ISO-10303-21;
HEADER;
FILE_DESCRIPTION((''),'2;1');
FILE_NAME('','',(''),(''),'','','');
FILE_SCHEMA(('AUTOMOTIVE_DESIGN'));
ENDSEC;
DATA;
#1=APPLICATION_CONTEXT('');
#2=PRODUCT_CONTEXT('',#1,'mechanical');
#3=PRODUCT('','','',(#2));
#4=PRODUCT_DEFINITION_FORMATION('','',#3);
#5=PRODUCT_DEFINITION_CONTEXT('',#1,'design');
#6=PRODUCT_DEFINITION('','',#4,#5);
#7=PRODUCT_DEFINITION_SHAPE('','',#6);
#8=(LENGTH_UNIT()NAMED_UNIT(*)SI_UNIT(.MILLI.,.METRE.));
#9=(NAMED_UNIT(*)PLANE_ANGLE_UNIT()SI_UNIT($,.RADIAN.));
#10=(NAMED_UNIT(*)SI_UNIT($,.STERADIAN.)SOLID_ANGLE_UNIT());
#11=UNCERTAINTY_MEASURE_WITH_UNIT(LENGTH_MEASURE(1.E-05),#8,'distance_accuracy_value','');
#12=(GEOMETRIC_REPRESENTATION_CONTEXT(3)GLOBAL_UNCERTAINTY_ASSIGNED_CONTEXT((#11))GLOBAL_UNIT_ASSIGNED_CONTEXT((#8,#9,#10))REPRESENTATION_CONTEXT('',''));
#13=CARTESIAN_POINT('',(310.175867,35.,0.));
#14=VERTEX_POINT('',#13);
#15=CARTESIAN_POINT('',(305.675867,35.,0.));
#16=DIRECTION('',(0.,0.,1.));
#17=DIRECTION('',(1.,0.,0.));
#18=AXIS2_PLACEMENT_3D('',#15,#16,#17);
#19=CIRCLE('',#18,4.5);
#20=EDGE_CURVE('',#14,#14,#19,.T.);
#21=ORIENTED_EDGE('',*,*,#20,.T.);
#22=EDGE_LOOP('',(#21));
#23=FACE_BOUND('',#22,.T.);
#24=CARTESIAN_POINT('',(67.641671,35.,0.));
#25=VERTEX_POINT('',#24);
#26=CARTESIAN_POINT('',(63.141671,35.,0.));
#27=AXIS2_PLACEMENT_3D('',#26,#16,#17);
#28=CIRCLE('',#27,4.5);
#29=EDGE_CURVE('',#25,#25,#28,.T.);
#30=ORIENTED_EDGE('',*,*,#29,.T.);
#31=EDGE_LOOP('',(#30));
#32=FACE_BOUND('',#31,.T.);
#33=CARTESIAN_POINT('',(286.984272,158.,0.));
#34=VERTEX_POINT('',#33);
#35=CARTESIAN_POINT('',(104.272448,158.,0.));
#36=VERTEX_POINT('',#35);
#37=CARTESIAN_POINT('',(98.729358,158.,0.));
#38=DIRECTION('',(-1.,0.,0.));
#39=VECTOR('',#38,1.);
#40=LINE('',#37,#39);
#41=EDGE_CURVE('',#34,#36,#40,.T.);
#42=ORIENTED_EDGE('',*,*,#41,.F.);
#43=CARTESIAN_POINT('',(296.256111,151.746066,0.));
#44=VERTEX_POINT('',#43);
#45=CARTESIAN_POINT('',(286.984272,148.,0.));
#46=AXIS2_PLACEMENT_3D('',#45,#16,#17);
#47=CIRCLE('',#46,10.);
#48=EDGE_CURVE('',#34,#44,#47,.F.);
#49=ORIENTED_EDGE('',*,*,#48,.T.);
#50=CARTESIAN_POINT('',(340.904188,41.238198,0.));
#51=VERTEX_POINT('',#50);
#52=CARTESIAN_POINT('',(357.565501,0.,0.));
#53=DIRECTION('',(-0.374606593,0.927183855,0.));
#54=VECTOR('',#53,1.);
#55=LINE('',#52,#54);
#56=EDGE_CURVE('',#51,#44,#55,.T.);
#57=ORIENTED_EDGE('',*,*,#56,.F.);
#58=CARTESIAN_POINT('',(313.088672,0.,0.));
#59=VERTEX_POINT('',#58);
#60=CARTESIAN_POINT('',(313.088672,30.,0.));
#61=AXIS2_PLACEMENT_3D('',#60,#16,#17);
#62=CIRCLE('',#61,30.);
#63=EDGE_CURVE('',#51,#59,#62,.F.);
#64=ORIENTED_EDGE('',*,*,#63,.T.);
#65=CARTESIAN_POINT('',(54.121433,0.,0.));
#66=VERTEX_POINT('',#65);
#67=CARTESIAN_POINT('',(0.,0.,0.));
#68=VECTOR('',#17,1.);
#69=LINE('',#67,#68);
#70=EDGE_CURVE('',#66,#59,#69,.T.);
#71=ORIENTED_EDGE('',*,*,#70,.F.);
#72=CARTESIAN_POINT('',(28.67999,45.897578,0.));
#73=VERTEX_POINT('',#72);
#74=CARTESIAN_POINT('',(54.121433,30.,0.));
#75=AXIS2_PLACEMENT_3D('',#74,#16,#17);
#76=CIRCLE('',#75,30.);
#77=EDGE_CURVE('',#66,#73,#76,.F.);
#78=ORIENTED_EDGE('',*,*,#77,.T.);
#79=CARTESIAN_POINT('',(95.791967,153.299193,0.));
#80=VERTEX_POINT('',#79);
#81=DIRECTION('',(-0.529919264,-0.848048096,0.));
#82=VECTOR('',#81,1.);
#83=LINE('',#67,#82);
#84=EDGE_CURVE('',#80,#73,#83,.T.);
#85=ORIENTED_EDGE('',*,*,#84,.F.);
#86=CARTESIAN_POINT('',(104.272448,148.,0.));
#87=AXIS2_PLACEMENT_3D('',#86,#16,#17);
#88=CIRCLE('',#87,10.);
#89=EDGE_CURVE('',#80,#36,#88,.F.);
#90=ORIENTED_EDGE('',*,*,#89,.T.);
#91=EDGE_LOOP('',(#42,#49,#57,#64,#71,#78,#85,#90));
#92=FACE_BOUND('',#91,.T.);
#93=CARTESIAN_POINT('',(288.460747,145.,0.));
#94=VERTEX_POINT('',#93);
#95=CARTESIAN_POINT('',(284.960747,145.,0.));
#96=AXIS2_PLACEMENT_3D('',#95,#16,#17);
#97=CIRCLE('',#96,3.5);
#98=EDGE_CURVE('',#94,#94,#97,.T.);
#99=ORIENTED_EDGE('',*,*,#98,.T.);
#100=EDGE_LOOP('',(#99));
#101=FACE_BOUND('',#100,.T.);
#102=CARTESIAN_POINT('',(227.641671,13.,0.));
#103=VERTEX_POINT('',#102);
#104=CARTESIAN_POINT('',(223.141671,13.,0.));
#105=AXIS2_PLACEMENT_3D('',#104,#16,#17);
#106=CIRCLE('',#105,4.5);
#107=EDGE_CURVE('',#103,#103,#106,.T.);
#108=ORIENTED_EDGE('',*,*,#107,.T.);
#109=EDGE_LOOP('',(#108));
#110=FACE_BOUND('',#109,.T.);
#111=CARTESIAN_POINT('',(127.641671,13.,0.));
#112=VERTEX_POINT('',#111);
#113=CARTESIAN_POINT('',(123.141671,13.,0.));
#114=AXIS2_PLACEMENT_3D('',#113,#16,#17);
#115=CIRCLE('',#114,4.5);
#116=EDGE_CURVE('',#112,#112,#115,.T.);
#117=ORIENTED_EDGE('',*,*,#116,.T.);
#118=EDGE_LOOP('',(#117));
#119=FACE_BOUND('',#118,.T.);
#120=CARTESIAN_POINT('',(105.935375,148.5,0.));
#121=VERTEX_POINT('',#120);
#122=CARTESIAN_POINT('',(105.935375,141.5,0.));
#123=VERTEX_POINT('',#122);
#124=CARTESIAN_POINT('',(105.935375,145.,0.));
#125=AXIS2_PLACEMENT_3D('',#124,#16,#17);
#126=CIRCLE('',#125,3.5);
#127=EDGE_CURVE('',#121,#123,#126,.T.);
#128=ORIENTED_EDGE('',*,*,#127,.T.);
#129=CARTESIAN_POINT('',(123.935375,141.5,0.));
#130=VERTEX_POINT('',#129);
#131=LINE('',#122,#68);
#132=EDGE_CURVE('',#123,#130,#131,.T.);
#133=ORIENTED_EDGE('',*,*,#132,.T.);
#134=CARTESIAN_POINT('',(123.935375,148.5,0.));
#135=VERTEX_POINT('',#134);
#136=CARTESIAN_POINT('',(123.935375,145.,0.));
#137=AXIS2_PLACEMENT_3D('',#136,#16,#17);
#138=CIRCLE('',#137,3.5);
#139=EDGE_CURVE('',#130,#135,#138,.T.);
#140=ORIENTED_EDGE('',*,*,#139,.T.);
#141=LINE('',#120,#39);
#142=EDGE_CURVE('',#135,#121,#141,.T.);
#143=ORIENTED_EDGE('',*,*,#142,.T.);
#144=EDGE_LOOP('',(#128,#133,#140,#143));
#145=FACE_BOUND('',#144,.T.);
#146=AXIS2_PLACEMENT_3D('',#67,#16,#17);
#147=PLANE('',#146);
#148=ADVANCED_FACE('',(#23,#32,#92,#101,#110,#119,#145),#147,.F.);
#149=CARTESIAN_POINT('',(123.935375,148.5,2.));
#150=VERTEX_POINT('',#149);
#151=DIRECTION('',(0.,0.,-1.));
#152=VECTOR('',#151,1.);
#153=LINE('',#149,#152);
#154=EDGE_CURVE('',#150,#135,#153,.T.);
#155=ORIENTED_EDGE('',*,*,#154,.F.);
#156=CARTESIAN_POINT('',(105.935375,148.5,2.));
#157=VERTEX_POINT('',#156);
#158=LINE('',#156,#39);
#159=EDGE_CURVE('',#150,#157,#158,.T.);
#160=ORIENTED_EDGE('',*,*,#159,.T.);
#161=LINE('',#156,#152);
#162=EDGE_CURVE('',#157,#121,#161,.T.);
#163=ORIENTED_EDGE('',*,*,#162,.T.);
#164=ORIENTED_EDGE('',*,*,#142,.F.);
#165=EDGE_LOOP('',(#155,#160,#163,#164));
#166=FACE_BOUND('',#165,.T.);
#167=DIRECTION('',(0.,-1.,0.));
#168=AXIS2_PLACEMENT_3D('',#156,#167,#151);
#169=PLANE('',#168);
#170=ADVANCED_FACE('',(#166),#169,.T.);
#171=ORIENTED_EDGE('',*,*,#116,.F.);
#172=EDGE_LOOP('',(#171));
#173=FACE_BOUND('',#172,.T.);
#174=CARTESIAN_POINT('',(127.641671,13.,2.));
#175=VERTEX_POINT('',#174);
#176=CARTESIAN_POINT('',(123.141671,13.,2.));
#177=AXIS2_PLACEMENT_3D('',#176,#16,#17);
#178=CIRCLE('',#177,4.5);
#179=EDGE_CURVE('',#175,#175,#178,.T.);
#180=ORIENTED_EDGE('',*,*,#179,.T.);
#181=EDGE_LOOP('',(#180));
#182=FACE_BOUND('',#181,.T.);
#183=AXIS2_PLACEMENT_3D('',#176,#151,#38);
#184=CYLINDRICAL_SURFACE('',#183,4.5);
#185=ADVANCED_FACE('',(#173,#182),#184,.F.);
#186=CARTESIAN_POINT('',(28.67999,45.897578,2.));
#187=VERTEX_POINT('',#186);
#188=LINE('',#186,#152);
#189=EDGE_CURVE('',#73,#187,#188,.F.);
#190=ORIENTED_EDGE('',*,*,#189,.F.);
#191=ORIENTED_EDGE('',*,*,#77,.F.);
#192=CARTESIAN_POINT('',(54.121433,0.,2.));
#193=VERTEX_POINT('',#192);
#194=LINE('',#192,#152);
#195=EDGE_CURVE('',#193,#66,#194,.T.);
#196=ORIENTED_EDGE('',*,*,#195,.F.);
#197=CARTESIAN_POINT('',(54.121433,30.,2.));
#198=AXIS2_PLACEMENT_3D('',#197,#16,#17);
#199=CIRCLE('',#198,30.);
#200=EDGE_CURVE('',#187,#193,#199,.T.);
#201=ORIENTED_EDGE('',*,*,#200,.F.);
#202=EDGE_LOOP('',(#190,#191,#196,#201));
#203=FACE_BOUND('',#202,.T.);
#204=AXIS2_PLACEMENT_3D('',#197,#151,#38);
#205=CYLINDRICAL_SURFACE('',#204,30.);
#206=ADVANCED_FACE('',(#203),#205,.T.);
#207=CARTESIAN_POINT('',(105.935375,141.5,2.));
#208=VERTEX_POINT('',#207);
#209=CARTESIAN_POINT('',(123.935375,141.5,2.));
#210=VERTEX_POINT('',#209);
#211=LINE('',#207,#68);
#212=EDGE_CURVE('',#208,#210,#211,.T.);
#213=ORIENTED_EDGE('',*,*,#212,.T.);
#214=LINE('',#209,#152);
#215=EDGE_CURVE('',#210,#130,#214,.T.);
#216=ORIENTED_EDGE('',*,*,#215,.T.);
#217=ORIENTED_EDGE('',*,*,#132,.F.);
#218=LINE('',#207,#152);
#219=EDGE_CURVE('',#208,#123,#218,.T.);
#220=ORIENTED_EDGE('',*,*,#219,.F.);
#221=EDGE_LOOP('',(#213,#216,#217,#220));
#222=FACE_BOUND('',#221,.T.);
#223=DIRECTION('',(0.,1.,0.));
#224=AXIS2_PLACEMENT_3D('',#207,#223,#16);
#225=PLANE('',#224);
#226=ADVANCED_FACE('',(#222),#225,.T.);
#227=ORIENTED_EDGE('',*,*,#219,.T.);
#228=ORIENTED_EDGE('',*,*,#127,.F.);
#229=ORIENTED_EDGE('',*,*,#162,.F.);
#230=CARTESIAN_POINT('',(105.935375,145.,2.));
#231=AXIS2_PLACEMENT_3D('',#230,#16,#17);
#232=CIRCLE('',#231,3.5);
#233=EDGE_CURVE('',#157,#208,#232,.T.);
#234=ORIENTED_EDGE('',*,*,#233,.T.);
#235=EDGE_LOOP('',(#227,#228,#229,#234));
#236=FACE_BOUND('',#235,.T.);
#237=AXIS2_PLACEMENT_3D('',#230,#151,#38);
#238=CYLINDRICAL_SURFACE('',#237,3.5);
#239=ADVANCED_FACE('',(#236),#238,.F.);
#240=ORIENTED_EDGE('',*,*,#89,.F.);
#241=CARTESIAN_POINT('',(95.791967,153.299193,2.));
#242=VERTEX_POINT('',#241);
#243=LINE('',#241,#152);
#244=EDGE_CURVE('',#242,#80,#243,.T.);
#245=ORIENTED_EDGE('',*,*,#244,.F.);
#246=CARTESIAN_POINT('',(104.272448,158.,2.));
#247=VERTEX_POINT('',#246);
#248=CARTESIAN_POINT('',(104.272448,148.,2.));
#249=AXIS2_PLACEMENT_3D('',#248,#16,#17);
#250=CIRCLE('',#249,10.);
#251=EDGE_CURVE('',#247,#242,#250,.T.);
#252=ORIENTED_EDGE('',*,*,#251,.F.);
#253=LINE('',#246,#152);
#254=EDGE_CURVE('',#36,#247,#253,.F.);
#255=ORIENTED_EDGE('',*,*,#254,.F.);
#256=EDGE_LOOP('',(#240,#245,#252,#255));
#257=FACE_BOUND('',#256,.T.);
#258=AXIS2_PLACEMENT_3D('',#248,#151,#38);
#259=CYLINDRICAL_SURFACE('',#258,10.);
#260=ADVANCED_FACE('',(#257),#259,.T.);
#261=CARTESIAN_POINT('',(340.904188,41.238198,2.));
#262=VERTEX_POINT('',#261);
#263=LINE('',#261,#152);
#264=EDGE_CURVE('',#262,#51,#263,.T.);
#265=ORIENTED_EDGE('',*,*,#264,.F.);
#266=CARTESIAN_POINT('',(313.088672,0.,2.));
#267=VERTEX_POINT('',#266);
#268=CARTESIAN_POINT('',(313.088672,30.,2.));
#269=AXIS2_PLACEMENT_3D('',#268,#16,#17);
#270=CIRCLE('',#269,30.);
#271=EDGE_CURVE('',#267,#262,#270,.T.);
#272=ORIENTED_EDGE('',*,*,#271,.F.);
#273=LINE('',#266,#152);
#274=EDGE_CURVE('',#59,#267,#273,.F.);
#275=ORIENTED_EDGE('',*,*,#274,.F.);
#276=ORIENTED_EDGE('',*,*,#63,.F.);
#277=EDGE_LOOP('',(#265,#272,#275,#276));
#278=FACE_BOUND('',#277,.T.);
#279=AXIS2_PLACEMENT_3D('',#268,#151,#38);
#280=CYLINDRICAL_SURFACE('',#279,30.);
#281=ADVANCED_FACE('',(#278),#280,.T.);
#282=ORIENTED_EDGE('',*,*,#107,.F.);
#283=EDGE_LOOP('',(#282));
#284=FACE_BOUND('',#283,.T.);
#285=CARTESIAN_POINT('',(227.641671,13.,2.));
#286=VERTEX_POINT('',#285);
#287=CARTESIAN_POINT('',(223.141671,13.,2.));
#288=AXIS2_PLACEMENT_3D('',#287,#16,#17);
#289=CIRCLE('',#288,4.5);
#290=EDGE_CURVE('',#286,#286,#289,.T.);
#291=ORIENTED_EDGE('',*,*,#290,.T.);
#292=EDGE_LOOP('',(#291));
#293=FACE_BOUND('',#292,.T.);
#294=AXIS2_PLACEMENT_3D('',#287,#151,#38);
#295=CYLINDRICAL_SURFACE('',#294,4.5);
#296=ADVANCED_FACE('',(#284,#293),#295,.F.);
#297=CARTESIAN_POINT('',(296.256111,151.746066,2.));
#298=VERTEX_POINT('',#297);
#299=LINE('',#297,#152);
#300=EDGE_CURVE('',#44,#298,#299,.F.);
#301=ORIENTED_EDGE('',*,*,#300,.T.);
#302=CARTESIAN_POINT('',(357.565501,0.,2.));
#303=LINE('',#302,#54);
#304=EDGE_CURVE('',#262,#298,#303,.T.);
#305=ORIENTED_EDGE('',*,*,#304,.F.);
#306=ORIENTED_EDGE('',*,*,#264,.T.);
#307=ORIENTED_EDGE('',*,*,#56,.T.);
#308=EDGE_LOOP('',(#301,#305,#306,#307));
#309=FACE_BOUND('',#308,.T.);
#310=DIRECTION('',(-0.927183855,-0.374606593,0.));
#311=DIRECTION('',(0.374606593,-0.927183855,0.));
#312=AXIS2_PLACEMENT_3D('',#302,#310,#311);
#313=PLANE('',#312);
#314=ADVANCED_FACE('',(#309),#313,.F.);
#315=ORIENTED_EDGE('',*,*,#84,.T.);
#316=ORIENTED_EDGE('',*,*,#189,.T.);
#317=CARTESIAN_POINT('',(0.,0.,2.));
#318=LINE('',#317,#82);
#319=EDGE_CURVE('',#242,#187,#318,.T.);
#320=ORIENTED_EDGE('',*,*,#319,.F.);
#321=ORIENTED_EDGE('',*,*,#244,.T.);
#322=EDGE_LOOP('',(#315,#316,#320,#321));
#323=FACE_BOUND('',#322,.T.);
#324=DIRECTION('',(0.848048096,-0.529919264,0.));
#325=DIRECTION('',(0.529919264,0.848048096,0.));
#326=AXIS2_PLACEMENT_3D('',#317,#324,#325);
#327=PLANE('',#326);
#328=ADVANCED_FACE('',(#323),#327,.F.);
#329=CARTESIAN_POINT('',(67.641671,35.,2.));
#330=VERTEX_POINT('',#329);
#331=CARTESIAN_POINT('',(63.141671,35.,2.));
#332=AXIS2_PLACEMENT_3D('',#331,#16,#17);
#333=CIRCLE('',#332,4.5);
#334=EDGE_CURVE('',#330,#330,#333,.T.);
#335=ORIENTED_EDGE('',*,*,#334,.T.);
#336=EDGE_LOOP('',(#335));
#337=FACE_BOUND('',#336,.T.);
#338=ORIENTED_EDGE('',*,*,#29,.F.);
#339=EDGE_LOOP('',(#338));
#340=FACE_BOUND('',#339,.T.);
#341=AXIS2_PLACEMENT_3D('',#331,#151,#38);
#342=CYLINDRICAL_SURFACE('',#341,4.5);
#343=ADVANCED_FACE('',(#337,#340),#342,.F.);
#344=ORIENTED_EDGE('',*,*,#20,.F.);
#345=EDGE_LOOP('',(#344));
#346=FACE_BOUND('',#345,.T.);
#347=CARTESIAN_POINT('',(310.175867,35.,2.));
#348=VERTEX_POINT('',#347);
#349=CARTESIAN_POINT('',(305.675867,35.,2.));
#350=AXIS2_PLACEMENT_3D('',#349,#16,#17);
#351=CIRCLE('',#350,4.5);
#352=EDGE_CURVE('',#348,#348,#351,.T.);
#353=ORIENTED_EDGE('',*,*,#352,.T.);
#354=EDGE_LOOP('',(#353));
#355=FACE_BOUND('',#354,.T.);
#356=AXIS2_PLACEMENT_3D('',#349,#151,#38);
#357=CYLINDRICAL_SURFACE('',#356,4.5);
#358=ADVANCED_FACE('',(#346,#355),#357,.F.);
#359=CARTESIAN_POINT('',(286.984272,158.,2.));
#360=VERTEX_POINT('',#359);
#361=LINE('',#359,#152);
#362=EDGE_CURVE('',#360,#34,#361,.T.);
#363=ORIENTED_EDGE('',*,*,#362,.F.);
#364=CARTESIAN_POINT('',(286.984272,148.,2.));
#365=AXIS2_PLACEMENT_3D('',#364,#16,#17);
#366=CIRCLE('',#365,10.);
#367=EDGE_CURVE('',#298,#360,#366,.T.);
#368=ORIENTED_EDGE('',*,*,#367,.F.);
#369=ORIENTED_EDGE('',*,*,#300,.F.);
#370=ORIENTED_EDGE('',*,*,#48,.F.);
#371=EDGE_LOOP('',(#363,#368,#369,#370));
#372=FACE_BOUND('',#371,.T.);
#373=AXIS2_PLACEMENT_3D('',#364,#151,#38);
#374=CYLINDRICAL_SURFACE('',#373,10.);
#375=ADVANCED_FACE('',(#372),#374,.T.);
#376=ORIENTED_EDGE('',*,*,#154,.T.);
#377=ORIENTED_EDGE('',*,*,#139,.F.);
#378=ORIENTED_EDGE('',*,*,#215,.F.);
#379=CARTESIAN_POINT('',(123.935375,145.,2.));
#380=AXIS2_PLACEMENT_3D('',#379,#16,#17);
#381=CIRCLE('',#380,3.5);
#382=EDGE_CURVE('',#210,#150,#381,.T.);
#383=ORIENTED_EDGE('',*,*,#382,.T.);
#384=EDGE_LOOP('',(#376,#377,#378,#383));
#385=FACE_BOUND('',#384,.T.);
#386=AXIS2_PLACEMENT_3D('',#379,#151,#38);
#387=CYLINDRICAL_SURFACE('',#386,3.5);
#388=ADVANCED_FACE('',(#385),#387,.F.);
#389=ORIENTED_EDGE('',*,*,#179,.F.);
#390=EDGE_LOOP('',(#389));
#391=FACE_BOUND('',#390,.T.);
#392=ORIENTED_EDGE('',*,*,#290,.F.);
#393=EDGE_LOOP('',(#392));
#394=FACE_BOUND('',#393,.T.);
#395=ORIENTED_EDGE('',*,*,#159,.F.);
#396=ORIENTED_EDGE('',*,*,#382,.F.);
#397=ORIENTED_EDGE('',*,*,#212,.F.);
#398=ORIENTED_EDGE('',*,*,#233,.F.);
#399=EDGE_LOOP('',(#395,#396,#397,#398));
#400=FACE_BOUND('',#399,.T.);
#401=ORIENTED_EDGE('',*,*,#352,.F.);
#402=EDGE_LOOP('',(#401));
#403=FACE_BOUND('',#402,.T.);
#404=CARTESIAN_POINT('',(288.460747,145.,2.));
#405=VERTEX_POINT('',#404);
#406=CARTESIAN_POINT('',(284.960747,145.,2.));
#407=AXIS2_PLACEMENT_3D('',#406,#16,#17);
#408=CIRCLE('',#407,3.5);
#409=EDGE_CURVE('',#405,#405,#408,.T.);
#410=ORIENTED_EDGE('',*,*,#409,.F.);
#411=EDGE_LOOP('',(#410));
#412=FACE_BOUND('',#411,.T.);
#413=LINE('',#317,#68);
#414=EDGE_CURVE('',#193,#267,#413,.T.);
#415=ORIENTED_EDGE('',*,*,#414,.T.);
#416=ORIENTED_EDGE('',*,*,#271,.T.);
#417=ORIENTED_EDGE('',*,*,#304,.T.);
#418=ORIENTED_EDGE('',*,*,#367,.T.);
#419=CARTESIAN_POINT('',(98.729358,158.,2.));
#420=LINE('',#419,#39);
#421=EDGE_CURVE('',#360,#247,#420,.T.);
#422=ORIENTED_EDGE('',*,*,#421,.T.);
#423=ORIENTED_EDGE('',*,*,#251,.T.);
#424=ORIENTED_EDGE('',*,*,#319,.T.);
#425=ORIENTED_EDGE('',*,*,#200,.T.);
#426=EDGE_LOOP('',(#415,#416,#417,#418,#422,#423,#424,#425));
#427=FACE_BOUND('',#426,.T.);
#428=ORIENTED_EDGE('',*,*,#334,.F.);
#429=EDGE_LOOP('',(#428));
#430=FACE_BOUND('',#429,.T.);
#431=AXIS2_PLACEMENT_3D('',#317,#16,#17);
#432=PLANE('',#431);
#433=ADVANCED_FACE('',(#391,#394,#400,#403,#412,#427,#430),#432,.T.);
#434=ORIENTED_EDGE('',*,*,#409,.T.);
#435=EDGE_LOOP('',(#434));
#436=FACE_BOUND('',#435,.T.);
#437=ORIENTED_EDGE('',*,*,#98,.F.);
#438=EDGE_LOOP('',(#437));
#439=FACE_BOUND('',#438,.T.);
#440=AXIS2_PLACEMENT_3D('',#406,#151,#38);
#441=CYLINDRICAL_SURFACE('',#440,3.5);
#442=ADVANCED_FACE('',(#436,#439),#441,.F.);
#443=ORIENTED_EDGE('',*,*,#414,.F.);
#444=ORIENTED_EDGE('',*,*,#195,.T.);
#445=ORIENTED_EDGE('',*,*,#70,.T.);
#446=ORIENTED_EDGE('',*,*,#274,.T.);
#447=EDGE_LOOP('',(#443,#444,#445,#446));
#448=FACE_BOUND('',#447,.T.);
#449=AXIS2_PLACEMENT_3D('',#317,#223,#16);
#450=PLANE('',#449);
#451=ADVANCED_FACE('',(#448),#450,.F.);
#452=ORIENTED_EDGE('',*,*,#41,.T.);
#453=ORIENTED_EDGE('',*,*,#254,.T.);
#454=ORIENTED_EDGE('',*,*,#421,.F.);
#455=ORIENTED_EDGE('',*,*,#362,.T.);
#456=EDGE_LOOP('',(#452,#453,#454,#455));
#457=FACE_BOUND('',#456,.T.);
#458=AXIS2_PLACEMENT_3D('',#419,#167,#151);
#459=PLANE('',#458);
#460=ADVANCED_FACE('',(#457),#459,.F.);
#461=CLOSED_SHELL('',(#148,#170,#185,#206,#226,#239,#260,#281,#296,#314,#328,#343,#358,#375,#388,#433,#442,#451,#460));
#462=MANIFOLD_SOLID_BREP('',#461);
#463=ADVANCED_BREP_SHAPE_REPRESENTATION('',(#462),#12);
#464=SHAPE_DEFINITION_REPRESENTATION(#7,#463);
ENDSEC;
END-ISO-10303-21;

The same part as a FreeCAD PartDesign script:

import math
import FreeCAD as App
import Part
import Sketcher
from FreeCAD import Vector
Q = App.Units.Quantity


def edges_at(feature, points):
    """Names of the edges that pass closest to the given points."""
    edges = feature.Shape.Edges
    near = lambda p: min(range(len(edges)), key=lambda i: edges[i].distToShape(Part.Vertex(*p))[0])
    return sorted({f"Edge{near(p) + 1}" for p in points})

doc = App.newDocument("Part")
body = doc.addObject("PartDesign::Body", "Body")

# Sketch on XY plane
sketch1 = body.newObject("Sketcher::SketchObject", "Sketch")
sketch1.AttachmentSupport = (doc.getObject("XY_Plane"), [""])
sketch1.MapMode = "FlatFace"
sketch1.addGeometry([
    Part.LineSegment(Vector(98.7, 158, 0), Vector(0, 0, 0)),  # 0
    Part.LineSegment(Vector(0, 0, 0), Vector(357.6, 0, 0)),  # 1
    Part.LineSegment(Vector(357.6, 0, 0), Vector(293.7, 158, 0)),  # 2
    Part.LineSegment(Vector(293.7, 158, 0), Vector(98.7, 158, 0)),  # 3
    Part.Circle(Vector(305.7, 35, 0), Vector(0, 0, 1), 4.5),  # 4
    Part.Circle(Vector(223.1, 13, 0), Vector(0, 0, 1), 4.5),  # 5
    Part.Circle(Vector(123.1, 13, 0), Vector(0, 0, 1), 4.5),  # 6
    Part.Circle(Vector(63.1, 35, 0), Vector(0, 0, 1), 4.5),  # 7
    Part.Circle(Vector(285, 145, 0), Vector(0, 0, 1), 3.5),  # 8
    Part.LineSegment(Vector(105.9, 148.5, 0), Vector(123.9, 148.5, 0)),  # 9
    Part.ArcOfCircle(Part.Circle(Vector(123.9, 145, 0), Vector(0, 0, 1), 3.5), math.radians(-90), math.radians(90)),  # 10
    Part.LineSegment(Vector(123.9, 141.5, 0), Vector(105.9, 141.5, 0)),  # 11
    Part.ArcOfCircle(Part.Circle(Vector(105.9, 145, 0), Vector(0, 0, 1), 3.5), math.radians(90), math.radians(270)),  # 12
], False)
sketch1.addConstraint([
    Sketcher.Constraint("Coincident", 0, 2, 1, 1),
    Sketcher.Constraint("Coincident", 1, 2, 2, 1),
    Sketcher.Constraint("Coincident", 2, 2, 3, 1),
    Sketcher.Constraint("Coincident", 3, 2, 0, 1),
    Sketcher.Constraint("Tangent", 9, 2, 10, 2),
    Sketcher.Constraint("Tangent", 10, 1, 11, 1),
    Sketcher.Constraint("Tangent", 11, 2, 12, 2),
    Sketcher.Constraint("Tangent", 12, 1, 9, 1),
    Sketcher.Constraint("Horizontal", 1),
    Sketcher.Constraint("Horizontal", 3),
    Sketcher.Constraint("Horizontal", 9),
    Sketcher.Constraint("Horizontal", 11),
    Sketcher.Constraint("Coincident", 0, 2, -1, 1),
    Sketcher.Constraint("Equal", 4, 5),
    Sketcher.Constraint("Equal", 5, 6),
    Sketcher.Constraint("Equal", 6, 7),
    Sketcher.Constraint("Equal", 8, 10),
    Sketcher.Constraint("Horizontal", 5, 3, 6, 3),
    Sketcher.Constraint("Horizontal", 4, 3, 7, 3),
    Sketcher.Constraint("Horizontal", 8, 3, 10, 3),
    Sketcher.Constraint("Diameter", 4, 9.0),
    Sketcher.Constraint("Diameter", 8, 7.0),
    Sketcher.Constraint("DistanceX", 3, 2, 3, 1, 195.0),
    Sketcher.Constraint("DistanceX", 9, 1, 9, 2, 18.0),
    Sketcher.Constraint("Angle", 0, Q("-122 deg")),
    Sketcher.Constraint("Angle", 2, Q("112 deg")),
    Sketcher.Constraint("DistanceY", -1, 1, 4, 3, 35.0),
    Sketcher.Constraint("DistanceY", -1, 1, 5, 3, 13.0),
    Sketcher.Constraint("DistanceY", -1, 1, 8, 3, 145.0),
    Sketcher.Constraint("DistanceY", -1, 1, 2, 2, 158.0),
    Sketcher.Constraint("DistanceX", 6, 3, 5, 3, 100.0),
    Sketcher.Constraint("DistanceX", 7, 3, 6, 3, 60.0),
    Sketcher.Constraint("DistanceX", -1, 1, 5, 3, 223.141671),
    Sketcher.Constraint("DistanceX", 8, 3, 4, 3, 20.715121),
    Sketcher.Constraint("DistanceX", 10, 3, 8, 3, 161.025372),
    Sketcher.Constraint("DistanceX", 8, 3, 2, 2, 8.768611),
])
pad1 = body.newObject("PartDesign::Pad", "Pad")
pad1.Profile = sketch1
pad1.Length = 2
doc.recompute()

fillet = body.newObject("PartDesign::Fillet", "Fillet")
fillet.Base = (pad1, edges_at(pad1, [(0, 0, 1), (357.566, 0, 1)]))
fillet.Radius = 30
doc.recompute()

fillet2 = body.newObject("PartDesign::Fillet", "Fillet001")
fillet2.Base = (fillet, edges_at(fillet, [(98.729, 158, 1), (293.729, 158, 1)]))
fillet2.Radius = 10

doc.recompute()
